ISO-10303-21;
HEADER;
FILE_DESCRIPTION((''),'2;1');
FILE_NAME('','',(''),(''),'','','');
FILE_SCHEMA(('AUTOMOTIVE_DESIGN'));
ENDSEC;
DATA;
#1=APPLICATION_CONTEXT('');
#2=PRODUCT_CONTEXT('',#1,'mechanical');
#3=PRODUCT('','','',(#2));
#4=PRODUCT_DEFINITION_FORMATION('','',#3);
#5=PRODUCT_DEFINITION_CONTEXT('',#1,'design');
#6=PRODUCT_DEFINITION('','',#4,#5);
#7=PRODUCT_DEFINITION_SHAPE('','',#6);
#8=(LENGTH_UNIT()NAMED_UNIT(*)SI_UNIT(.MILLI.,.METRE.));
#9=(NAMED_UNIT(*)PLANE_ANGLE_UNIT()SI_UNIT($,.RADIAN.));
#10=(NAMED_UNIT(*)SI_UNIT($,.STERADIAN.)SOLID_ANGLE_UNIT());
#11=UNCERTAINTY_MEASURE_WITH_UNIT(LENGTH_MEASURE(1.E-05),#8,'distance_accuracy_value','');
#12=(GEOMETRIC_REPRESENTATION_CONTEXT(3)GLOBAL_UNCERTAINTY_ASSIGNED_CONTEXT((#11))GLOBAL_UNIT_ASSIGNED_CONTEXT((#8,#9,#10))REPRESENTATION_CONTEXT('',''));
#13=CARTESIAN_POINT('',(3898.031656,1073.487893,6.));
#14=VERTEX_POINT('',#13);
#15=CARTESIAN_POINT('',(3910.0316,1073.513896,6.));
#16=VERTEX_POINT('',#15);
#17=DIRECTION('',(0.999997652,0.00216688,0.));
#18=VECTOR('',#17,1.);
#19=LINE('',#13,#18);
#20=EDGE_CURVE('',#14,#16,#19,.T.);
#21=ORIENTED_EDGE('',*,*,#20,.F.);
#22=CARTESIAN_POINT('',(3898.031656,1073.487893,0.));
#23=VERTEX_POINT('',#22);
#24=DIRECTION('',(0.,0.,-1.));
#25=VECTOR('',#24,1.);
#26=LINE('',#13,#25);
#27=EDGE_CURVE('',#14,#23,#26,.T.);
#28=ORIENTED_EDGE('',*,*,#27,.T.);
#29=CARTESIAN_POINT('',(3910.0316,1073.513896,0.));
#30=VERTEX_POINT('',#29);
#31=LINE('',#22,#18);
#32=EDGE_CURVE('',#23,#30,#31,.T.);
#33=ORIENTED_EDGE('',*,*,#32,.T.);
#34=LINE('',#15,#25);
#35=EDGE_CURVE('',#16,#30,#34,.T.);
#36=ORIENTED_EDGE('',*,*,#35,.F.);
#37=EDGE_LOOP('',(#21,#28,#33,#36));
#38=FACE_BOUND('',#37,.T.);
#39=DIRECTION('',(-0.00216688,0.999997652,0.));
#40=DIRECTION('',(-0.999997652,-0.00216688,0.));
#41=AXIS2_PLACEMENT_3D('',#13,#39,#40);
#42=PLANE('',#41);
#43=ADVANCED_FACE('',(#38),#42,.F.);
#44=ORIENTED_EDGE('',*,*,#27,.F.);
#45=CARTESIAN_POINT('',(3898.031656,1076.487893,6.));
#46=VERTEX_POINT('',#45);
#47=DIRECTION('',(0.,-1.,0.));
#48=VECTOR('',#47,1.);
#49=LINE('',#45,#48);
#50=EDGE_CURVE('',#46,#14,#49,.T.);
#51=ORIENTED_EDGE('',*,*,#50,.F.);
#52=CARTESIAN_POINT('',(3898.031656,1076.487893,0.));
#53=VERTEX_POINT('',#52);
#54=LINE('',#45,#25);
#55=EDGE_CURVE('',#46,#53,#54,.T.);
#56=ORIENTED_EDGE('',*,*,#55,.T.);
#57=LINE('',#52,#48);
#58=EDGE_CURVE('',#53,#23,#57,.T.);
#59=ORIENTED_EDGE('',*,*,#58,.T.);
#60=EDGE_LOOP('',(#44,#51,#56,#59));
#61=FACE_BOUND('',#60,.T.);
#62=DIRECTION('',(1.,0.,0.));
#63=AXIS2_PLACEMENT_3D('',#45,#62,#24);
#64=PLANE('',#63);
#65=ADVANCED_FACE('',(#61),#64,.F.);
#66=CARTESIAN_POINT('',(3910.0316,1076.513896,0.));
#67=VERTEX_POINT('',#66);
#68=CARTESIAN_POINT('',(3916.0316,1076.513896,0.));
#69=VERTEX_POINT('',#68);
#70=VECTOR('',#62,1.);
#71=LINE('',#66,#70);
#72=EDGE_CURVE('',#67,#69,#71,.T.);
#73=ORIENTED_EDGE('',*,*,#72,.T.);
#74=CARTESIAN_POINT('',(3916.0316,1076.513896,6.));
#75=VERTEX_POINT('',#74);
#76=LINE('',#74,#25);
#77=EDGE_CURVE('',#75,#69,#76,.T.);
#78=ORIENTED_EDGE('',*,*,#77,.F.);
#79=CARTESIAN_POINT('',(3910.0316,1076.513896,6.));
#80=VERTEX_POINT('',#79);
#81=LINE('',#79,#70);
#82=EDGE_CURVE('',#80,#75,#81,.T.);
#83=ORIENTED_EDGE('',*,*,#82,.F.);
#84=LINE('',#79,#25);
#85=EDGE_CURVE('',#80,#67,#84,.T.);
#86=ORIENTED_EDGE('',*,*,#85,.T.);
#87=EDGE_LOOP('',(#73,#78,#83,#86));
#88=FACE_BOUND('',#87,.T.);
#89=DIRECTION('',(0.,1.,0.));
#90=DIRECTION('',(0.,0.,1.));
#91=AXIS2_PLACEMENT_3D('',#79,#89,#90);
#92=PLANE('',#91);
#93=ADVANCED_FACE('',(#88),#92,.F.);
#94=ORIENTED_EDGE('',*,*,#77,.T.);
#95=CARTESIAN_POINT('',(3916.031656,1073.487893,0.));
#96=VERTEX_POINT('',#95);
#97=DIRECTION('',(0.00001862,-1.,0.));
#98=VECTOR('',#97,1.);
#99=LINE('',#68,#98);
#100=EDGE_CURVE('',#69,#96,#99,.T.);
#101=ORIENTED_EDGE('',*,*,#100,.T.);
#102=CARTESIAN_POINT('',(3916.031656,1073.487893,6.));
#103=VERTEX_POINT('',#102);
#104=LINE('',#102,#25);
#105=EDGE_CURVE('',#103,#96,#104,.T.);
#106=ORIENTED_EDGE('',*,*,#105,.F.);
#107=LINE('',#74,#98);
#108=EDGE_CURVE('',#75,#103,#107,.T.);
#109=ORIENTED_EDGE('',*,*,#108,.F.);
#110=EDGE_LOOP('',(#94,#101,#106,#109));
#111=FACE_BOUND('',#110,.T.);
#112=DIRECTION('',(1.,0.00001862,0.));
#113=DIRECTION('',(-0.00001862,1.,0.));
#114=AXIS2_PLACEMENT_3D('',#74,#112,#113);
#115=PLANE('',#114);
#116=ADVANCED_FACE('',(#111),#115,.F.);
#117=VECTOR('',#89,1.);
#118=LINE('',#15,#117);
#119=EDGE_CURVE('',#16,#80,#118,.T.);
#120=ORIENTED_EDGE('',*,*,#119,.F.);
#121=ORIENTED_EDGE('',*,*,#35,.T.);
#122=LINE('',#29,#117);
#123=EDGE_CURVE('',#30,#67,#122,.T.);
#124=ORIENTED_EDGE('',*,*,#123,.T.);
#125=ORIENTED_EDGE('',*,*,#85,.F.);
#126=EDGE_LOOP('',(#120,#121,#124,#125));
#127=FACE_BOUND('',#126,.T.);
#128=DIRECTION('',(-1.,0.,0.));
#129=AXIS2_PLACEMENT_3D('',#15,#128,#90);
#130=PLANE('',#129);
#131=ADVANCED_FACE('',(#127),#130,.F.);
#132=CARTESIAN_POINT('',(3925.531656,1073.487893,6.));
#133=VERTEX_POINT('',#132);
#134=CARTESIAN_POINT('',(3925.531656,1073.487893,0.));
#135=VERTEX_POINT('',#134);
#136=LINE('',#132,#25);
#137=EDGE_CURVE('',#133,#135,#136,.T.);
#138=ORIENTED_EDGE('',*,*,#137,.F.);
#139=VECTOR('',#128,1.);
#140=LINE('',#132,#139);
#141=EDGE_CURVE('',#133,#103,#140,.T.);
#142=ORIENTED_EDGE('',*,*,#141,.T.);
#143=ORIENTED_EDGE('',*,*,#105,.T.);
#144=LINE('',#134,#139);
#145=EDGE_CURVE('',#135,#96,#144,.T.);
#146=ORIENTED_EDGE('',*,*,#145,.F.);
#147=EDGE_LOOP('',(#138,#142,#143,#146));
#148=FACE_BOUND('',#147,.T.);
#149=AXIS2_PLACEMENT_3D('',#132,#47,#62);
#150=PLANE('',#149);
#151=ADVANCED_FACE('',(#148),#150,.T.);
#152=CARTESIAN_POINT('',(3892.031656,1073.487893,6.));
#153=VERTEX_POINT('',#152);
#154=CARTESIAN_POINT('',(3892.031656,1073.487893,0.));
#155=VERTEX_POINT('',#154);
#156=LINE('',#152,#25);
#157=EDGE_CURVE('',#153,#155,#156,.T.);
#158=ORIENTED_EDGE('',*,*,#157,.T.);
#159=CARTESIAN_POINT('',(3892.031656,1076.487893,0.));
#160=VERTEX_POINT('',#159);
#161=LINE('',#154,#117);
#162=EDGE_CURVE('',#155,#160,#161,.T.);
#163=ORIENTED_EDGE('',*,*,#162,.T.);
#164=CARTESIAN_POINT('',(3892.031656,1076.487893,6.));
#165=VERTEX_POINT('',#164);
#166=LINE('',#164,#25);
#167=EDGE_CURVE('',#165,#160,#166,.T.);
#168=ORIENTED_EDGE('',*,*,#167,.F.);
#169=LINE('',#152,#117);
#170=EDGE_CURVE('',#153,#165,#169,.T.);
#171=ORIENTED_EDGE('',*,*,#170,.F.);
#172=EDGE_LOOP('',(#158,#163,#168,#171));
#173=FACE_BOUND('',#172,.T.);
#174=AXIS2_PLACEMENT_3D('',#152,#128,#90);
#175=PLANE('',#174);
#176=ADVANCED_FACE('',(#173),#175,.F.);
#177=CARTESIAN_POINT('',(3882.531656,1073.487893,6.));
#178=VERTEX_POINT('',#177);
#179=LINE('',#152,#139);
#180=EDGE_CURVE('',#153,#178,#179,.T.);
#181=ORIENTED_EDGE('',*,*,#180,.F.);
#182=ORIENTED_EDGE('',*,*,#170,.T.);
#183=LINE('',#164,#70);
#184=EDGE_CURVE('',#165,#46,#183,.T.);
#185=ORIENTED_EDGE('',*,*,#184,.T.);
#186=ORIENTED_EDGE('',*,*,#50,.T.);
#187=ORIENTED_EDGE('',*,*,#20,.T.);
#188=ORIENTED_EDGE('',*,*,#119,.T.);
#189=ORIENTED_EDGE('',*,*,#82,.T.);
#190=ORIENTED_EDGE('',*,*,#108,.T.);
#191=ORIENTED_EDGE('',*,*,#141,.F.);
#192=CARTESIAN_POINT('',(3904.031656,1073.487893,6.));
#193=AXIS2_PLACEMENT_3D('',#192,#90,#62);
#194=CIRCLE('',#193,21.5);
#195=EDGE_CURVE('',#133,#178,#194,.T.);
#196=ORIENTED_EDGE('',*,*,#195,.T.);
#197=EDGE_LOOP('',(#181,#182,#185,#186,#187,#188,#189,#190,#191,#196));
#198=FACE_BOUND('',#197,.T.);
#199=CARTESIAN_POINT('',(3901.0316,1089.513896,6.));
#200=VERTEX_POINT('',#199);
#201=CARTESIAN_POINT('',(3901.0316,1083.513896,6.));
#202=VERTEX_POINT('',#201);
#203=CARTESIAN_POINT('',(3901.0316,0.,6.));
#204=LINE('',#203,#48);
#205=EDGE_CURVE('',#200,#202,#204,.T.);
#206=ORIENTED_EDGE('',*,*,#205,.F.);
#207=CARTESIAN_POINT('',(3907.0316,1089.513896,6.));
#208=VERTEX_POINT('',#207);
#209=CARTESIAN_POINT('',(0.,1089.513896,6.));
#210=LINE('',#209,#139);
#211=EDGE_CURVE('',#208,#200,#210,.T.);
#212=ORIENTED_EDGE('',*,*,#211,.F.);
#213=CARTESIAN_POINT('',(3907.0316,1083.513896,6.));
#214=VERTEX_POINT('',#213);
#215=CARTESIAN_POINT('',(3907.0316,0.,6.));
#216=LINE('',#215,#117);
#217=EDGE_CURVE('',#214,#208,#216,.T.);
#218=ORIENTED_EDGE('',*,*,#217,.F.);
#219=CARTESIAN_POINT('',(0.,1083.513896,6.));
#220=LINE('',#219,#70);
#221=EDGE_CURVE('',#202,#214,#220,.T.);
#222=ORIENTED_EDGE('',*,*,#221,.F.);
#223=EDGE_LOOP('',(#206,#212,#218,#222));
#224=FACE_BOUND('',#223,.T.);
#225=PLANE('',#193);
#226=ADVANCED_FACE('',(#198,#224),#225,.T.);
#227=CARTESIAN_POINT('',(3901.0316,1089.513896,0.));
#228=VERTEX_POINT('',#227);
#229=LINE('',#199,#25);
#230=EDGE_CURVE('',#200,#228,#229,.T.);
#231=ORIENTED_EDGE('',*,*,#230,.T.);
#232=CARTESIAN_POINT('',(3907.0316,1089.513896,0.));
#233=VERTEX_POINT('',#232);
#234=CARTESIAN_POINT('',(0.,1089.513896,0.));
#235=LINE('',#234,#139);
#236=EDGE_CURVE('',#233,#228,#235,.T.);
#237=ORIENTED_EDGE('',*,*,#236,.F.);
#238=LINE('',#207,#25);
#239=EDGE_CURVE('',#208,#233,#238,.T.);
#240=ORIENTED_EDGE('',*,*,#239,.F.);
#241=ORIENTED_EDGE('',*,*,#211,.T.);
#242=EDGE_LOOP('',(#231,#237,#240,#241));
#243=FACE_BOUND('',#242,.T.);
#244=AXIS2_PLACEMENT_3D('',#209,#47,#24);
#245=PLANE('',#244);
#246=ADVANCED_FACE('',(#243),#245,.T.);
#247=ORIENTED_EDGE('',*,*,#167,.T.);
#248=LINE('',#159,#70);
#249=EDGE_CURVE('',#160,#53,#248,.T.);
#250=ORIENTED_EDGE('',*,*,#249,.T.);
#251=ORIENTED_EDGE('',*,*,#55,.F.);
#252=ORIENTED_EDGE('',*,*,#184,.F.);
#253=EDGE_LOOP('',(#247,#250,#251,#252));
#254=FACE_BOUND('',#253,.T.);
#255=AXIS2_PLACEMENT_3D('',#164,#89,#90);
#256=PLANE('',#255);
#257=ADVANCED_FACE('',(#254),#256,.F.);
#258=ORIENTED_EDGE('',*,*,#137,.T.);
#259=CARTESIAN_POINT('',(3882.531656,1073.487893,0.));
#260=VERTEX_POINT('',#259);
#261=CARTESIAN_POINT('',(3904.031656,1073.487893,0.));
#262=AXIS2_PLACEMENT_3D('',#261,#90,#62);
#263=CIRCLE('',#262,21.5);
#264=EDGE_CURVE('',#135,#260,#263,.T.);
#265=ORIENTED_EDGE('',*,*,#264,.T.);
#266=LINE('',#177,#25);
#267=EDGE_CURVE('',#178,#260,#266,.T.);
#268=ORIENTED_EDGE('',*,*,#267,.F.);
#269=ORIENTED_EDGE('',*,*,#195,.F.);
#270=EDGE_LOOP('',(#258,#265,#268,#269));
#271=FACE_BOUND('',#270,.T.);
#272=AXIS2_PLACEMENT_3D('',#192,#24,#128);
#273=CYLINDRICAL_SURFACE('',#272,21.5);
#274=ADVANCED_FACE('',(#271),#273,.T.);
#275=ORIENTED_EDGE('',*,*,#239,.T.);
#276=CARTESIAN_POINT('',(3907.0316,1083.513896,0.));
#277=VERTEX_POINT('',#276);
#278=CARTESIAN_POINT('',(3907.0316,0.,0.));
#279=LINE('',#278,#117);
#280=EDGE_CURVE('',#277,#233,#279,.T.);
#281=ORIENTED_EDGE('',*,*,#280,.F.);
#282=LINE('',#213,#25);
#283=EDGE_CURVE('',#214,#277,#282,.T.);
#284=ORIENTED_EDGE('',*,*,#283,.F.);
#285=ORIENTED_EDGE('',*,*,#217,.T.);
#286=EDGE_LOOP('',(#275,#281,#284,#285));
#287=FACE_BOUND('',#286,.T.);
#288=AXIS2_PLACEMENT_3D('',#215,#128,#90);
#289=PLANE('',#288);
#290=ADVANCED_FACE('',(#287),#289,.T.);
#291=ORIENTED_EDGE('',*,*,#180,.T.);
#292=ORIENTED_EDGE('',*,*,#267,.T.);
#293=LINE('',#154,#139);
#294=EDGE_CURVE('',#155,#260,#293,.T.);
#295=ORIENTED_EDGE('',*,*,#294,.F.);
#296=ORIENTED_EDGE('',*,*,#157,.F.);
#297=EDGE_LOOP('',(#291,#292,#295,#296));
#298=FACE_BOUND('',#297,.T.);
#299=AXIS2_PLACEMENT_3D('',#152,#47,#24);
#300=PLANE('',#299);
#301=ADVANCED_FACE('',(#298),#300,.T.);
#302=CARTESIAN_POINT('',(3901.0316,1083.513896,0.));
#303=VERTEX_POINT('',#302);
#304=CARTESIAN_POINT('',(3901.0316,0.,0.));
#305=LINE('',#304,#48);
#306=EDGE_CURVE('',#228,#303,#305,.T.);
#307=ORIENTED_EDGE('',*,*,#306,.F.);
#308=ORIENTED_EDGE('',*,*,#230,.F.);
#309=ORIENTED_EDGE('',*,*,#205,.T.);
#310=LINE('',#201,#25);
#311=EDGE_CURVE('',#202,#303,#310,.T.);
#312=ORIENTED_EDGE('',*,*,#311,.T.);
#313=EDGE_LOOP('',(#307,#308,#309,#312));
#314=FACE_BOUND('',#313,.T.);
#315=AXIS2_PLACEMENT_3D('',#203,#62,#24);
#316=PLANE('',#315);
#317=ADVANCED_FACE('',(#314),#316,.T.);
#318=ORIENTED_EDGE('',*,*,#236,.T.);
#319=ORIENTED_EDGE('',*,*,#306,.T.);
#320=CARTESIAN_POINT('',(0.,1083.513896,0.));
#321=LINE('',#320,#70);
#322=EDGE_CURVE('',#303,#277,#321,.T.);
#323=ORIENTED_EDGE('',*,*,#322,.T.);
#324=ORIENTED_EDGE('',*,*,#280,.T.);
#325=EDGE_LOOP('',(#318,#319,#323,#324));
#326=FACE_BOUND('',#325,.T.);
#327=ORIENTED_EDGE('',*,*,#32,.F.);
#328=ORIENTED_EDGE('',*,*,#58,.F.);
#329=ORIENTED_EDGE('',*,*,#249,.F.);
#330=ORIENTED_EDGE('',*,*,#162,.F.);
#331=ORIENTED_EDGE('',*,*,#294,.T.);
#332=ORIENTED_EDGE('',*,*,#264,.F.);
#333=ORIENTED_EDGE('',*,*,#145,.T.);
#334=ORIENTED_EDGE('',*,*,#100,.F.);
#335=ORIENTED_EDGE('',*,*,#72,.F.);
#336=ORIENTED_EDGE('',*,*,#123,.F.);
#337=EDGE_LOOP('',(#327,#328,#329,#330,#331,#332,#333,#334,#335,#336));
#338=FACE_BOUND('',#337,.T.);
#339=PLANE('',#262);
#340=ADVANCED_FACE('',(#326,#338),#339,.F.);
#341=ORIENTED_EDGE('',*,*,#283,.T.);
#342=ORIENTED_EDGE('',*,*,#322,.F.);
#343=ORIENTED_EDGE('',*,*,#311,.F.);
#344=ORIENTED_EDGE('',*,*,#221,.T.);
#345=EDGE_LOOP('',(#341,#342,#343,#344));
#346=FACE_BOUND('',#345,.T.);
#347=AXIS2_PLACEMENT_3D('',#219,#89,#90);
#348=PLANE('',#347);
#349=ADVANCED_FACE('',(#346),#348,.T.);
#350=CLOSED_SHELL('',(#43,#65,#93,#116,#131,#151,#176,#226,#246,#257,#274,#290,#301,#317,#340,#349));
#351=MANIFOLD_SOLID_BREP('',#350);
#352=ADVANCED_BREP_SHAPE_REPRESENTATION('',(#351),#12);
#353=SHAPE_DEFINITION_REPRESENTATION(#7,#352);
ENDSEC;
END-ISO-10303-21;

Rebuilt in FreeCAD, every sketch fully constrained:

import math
import FreeCAD as App
import Part
import Sketcher
from FreeCAD import Vector

doc = App.newDocument("Part")
body = doc.addObject("PartDesign::Body", "Body")

# Sketch on XY plane
sketch1 = body.newObject("Sketcher::SketchObject", "Sketch")
sketch1.AttachmentSupport = (doc.getObject("XY_Plane"), [""])
sketch1.MapMode = "FlatFace"
sketch1.addGeometry([
    Part.LineSegment(Vector(3916, 1073.5, 0), Vector(3925.5, 1073.5, 0)),  # 0
    Part.ArcOfCircle(Part.Circle(Vector(3904, 1073.5, 0), Vector(0, 0, 1), 21.5), math.radians(0), math.radians(180)),  # 1
    Part.LineSegment(Vector(3882.5, 1073.5, 0), Vector(3892, 1073.5, 0)),  # 2
    Part.LineSegment(Vector(3892, 1073.5, 0), Vector(3892, 1076.5, 0)),  # 3
    Part.LineSegment(Vector(3892, 1076.5, 0), Vector(3898, 1076.5, 0)),  # 4
    Part.LineSegment(Vector(3898, 1076.5, 0), Vector(3898, 1073.5, 0)),  # 5
    Part.LineSegment(Vector(3898, 1073.5, 0), Vector(3910, 1073.5, 0)),  # 6
    Part.LineSegment(Vector(3910, 1073.5, 0), Vector(3910, 1076.5, 0)),  # 7
    Part.LineSegment(Vector(3910, 1076.5, 0), Vector(3916, 1076.5, 0)),  # 8
    Part.LineSegment(Vector(3916, 1076.5, 0), Vector(3916, 1073.5, 0)),  # 9
    Part.LineSegment(Vector(3901, 1083.5, 0), Vector(3901, 1089.5, 0)),  # 10
    Part.LineSegment(Vector(3901, 1089.5, 0), Vector(3907, 1089.5, 0)),  # 11
    Part.LineSegment(Vector(3907, 1089.5, 0), Vector(3907, 1083.5, 0)),  # 12
    Part.LineSegment(Vector(3907, 1083.5, 0), Vector(3901, 1083.5, 0)),  # 13
], False)
sketch1.addConstraint([
    Sketcher.Constraint("Coincident", 0, 2, 1, 1),
    Sketcher.Constraint("Coincident", 1, 2, 2, 1),
    Sketcher.Constraint("Coincident", 2, 2, 3, 1),
    Sketcher.Constraint("Coincident", 3, 2, 4, 1),
    Sketcher.Constraint("Coincident", 4, 2, 5, 1),
    Sketcher.Constraint("Coincident", 5, 2, 6, 1),
    Sketcher.Constraint("Coincident", 6, 2, 7, 1),
    Sketcher.Constraint("Coincident", 7, 2, 8, 1),
    Sketcher.Constraint("Coincident", 8, 2, 9, 1),
    Sketcher.Constraint("Coincident", 9, 2, 0, 1),
    Sketcher.Constraint("Coincident", 10, 2, 11, 1),
    Sketcher.Constraint("Coincident", 11, 2, 12, 1),
    Sketcher.Constraint("Coincident", 12, 2, 13, 1),
    Sketcher.Constraint("Coincident", 13, 2, 10, 1),
    Sketcher.Constraint("Horizontal", 0),
    Sketcher.Constraint("Horizontal", 2),
    Sketcher.Constraint("Vertical", 3),
    Sketcher.Constraint("Horizontal", 4),
    Sketcher.Constraint("Vertical", 5),
    Sketcher.Constraint("Vertical", 7),
    Sketcher.Constraint("Horizontal", 8),
    Sketcher.Constraint("Vertical", 10),
    Sketcher.Constraint("Horizontal", 11),
    Sketcher.Constraint("Vertical", 12),
    Sketcher.Constraint("Horizontal", 13),
    Sketcher.Constraint("Horizontal", 1, 3, 0, 2),
    Sketcher.Constraint("Horizontal", 0, 2, 1, 2),
    Sketcher.Constraint("Horizontal", 2, 2, 5, 2),
    Sketcher.Constraint("Equal", 0, 2),
    Sketcher.Constraint("Equal", 4, 8),
    Sketcher.Constraint("Equal", 8, 11),
    Sketcher.Constraint("Equal", 5, 7),
    Sketcher.Constraint("Equal", 13, 10),
    Sketcher.Constraint("Radius", 1, 21.5),
    Sketcher.Constraint("DistanceX", 4, 1, 4, 2, 6.0),
    Sketcher.Constraint("DistanceY", 3, 1, 3, 2, 3.0),
    Sketcher.Constraint("DistanceX", 0, 1, 0, 2, 9.5),
    Sketcher.Constraint("DistanceX", 10, 2, 7, 2, 9.0),
    Sketcher.Constraint("DistanceY", 7, 2, 10, 2, 13.0),
    Sketcher.Constraint("DistanceX", -1, 1, 6, 2, 3910.0316),
    Sketcher.Constraint("Distance", 6, 11.999972),
    Sketcher.Constraint("Distance", 9, 3.026002),
    Sketcher.Constraint("DistanceY", -1, 1, 1, 3, 1073.487893),
])
pad1 = body.newObject("PartDesign::Pad", "Pad")
pad1.Profile = sketch1
pad1.Length = 6

doc.recompute()
